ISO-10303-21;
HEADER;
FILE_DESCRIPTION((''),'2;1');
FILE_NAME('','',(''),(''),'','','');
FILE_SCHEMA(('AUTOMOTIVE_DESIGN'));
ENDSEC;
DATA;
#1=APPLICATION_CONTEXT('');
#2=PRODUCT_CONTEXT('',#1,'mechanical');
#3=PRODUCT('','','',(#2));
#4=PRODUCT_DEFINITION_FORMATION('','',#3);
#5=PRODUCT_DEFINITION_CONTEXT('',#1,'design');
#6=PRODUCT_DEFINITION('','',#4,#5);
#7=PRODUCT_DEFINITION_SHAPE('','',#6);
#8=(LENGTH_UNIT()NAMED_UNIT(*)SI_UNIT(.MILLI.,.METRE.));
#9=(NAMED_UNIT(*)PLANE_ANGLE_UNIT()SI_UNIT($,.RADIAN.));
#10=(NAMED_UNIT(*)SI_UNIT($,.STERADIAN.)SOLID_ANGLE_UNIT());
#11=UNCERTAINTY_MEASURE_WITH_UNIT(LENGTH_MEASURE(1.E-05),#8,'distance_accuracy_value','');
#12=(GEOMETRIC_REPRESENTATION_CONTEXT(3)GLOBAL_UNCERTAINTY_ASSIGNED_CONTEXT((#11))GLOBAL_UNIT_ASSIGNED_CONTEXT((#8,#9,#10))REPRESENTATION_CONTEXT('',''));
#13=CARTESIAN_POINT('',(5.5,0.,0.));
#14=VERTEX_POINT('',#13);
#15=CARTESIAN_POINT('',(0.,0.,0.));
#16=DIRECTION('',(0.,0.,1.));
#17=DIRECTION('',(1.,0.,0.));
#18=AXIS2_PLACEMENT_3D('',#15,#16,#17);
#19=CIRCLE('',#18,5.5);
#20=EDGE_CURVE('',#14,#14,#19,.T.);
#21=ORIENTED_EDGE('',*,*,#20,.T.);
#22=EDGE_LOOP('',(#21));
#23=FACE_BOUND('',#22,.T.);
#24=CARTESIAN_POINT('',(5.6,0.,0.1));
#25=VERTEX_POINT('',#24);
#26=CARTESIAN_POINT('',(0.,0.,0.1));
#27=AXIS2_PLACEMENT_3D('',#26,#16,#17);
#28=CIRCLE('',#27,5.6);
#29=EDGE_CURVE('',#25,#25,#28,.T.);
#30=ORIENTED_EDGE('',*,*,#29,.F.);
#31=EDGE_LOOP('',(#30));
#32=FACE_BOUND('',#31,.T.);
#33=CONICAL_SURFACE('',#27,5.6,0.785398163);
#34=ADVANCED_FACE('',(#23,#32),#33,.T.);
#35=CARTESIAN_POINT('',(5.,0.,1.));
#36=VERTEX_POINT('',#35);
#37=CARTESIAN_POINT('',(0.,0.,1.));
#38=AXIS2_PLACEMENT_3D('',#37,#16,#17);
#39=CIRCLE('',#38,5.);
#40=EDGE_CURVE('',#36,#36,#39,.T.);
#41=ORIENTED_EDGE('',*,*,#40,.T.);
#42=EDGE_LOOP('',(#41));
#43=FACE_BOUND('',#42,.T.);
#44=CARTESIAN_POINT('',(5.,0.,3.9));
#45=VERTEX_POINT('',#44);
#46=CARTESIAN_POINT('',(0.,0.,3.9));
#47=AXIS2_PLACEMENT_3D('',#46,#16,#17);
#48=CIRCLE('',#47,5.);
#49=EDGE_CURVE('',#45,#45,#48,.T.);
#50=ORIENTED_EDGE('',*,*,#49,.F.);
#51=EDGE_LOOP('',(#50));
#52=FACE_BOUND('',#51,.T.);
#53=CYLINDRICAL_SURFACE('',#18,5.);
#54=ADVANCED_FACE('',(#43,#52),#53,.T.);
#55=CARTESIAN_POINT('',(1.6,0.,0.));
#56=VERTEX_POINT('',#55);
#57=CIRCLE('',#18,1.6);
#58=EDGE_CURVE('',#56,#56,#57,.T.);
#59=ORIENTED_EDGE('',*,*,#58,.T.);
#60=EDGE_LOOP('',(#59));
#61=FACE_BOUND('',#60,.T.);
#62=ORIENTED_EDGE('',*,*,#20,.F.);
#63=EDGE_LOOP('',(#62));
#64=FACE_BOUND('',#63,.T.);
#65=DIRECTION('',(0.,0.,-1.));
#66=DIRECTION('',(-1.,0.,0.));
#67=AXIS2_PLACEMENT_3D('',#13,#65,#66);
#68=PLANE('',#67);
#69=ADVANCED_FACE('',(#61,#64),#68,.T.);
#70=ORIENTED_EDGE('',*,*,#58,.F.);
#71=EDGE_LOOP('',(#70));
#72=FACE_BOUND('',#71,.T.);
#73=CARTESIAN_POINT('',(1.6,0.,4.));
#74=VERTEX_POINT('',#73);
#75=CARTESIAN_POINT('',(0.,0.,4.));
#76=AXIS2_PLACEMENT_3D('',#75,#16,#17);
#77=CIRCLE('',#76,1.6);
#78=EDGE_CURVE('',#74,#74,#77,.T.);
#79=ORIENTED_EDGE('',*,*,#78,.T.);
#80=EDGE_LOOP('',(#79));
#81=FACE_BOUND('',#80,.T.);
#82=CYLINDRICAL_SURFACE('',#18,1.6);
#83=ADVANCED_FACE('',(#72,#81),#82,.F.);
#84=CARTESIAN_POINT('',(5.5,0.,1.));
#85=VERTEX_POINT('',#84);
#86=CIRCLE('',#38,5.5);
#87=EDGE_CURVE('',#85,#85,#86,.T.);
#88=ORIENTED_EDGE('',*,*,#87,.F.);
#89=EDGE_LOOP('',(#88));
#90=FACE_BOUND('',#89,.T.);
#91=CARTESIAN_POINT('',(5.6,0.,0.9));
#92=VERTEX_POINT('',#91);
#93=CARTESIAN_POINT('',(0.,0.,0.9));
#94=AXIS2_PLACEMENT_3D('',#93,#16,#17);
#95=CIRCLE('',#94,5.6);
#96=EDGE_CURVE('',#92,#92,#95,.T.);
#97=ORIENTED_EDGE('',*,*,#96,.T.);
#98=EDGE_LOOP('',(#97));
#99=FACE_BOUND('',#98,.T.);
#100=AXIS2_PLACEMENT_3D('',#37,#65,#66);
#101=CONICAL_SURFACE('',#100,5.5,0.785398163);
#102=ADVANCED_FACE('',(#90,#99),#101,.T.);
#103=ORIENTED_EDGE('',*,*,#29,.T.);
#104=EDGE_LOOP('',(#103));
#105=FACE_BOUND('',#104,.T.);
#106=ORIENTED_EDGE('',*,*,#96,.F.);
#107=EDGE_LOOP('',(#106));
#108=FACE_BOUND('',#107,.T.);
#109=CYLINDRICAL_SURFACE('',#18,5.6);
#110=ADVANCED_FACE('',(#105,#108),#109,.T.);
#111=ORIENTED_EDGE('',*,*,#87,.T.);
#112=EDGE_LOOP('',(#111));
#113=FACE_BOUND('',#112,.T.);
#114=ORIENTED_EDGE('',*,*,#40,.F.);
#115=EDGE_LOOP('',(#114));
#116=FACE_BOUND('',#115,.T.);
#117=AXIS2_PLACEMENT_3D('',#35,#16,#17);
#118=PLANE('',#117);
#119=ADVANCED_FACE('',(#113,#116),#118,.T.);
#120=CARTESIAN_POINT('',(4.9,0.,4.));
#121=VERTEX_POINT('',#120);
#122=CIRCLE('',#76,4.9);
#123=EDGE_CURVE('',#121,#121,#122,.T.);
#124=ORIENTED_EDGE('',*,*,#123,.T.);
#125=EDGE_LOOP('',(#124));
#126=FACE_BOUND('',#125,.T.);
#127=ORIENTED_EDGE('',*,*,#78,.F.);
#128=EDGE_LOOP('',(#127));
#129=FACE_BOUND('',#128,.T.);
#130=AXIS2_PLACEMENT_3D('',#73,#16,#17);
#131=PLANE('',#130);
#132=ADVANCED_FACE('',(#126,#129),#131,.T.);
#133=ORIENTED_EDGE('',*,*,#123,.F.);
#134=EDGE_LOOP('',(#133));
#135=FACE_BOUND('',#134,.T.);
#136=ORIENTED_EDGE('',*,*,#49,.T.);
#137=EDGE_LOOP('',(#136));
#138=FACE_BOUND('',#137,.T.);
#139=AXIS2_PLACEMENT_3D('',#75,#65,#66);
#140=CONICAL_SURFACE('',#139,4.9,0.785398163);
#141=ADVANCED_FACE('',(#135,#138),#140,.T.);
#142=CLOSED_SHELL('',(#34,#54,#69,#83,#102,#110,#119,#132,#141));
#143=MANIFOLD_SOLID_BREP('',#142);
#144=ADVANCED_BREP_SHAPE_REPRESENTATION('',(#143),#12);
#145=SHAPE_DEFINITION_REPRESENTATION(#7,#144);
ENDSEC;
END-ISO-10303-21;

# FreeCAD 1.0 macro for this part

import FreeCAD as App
import Part
import Sketcher
from FreeCAD import Vector

doc = App.newDocument("Part")
body = doc.addObject("PartDesign::Body", "Body")

sketch1 = body.newObject("Sketcher::SketchObject", "Sketch")
sketch1.AttachmentSupport = (doc.getObject("XZ_Plane"), [""])
sketch1.MapMode = "FlatFace"
sketch1.addGeometry([
    Part.LineSegment(Vector(5, 3.9, 0), Vector(5, 1, 0)),
    Part.LineSegment(Vector(5, 1, 0), Vector(5.5, 1, 0)),
    Part.LineSegment(Vector(5.5, 1, 0), Vector(5.6, 0.9, 0)),
    Part.LineSegment(Vector(5.6, 0.9, 0), Vector(5.6, 0.1, 0)),
    Part.LineSegment(Vector(5.6, 0.1, 0), Vector(5.5, 0, 0)),
    Part.LineSegment(Vector(5.5, 0, 0), Vector(1.6, 0, 0)),
    Part.LineSegment(Vector(1.6, 0, 0), Vector(1.6, 4, 0)),
    Part.LineSegment(Vector(1.6, 4, 0), Vector(4.9, 4, 0)),
    Part.LineSegment(Vector(4.9, 4, 0), Vector(5, 3.9, 0)),
], False)
sketch1.addConstraint([
    Sketcher.Constraint("Coincident", 0, 2, 1, 1),
    Sketcher.Constraint("Coincident", 1, 2, 2, 1),
    Sketcher.Constraint("Coincident", 2, 2, 3, 1),
    Sketcher.Constraint("Coincident", 3, 2, 4, 1),
    Sketcher.Constraint("Coincident", 4, 2, 5, 1),
    Sketcher.Constraint("Coincident", 5, 2, 6, 1),
    Sketcher.Constraint("Coincident", 6, 2, 7, 1),
    Sketcher.Constraint("Coincident", 7, 2, 8, 1),
    Sketcher.Constraint("Coincident", 8, 2, 0, 1),
    Sketcher.Constraint("Vertical", 0),
    Sketcher.Constraint("Horizontal", 1),
    Sketcher.Constraint("Vertical", 3),
    Sketcher.Constraint("Horizontal", 5),
    Sketcher.Constraint("Vertical", 6),
    Sketcher.Constraint("Horizontal", 7),
    Sketcher.Constraint("PointOnObject", 4, 2, -1),
    Sketcher.Constraint("Perpendicular", 2, 4),
    Sketcher.Constraint("Perpendicular", 4, 8),
    Sketcher.Constraint("Vertical", 1, 2, 4, 2),
    Sketcher.Constraint("Equal", 2, 4),
    Sketcher.Constraint("Equal", 4, 8),
    Sketcher.Constraint("DistanceY", 6, 1, 6, 2, 4.0),
    Sketcher.Constraint("DistanceX", 1, 1, 1, 2, 0.5),
    Sketcher.Constraint("DistanceX", 5, 2, 5, 1, 3.9),
    Sketcher.Constraint("DistanceX", 7, 1, 7, 2, 3.3),
    Sketcher.Constraint("DistanceY", 0, 2, 0, 1, 2.9),
    Sketcher.Constraint("DistanceX", -1, 1, 0, 2, 5.0),
])
revolution = body.newObject("PartDesign::Revolution", "Revolution")
revolution.Profile = sketch1
revolution.ReferenceAxis = (sketch1, ["V_Axis"])
revolution.Angle = 360

doc.recompute()
